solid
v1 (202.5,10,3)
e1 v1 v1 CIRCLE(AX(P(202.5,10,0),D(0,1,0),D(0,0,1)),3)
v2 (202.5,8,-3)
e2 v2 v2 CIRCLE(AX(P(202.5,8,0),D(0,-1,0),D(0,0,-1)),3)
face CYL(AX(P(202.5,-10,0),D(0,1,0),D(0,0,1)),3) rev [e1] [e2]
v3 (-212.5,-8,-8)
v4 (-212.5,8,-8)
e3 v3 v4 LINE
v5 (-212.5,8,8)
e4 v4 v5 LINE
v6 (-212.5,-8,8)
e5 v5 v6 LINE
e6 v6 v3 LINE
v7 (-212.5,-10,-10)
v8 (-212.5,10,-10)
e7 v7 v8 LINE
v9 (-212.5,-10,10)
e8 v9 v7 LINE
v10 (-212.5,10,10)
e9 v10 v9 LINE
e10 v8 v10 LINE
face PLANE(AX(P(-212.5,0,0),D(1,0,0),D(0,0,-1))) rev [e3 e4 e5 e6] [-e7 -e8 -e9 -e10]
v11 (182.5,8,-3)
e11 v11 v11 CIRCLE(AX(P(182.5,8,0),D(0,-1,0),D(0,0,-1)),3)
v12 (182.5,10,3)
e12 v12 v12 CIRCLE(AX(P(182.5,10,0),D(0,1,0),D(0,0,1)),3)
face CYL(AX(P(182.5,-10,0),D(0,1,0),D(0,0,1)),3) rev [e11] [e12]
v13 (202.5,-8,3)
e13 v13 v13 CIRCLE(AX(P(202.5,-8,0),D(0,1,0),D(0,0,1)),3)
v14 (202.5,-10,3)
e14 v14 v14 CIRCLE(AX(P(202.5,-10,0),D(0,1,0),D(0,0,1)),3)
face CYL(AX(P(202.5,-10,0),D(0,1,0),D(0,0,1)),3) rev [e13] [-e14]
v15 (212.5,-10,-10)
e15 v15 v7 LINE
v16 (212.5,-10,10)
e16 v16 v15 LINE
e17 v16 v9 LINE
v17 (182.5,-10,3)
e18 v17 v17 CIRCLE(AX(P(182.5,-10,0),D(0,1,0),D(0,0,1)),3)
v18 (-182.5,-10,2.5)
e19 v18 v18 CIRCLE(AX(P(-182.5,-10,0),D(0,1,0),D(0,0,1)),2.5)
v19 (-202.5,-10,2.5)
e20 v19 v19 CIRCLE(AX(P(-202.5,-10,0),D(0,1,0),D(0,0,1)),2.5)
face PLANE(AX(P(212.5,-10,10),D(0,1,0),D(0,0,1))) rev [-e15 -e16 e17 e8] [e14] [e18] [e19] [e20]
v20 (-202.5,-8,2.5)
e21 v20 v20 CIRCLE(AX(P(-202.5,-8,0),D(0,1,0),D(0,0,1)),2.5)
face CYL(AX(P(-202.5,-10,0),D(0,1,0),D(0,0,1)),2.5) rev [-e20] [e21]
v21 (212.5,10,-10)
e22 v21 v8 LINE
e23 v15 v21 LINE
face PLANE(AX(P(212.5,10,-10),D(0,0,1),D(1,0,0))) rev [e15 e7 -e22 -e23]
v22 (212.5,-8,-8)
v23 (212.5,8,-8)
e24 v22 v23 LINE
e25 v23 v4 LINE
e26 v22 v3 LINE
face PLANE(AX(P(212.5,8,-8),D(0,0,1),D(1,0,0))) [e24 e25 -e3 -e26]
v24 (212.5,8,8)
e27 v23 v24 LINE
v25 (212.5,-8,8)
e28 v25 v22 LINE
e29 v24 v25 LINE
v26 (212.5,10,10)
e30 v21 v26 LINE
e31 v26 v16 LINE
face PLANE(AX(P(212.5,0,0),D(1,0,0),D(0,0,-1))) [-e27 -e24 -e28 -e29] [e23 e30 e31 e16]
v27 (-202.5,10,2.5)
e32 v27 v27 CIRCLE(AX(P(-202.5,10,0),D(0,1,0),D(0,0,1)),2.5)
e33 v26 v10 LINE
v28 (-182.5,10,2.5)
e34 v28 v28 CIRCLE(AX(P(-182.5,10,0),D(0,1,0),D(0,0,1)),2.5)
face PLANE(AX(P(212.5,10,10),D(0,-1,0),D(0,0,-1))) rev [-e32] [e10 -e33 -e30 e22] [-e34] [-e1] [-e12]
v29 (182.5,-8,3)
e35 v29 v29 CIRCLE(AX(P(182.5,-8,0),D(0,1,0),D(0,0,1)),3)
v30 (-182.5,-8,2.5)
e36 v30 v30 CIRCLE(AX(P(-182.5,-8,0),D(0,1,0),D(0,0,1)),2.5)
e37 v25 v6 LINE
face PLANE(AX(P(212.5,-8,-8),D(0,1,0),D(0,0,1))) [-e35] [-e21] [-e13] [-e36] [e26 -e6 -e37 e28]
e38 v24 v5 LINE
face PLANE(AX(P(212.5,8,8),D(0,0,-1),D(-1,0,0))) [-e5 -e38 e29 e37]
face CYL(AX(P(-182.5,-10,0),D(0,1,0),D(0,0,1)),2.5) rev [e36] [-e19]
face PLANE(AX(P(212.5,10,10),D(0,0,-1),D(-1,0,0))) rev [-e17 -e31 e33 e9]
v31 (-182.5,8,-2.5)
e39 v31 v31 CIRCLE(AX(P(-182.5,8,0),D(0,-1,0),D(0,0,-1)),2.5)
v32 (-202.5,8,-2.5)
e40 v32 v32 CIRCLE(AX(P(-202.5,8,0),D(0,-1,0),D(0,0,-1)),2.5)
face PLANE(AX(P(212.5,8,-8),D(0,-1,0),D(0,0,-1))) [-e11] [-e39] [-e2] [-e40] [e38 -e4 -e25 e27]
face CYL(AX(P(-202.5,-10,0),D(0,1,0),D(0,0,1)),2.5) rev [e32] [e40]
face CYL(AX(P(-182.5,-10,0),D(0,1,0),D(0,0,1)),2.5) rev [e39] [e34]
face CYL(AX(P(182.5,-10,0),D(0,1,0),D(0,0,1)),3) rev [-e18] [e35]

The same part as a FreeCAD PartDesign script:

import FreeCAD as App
import Part
import Sketcher
Q = App.Units.Quantity


def add_polygon(sketch, points):
    """Adds a closed chain of lines whose ends are joined by coincident constraints."""
    first, n = sketch.GeometryCount, len(points)
    for a, b in zip(points, points[1:] + points[:1]):
        sketch.addGeometry(Part.LineSegment(App.Vector(*a, 0), App.Vector(*b, 0)), False)
    for i in range(n):
        sketch.addConstraint(Sketcher.Constraint("Coincident", first + i, 2, first + (i + 1) % n, 1))

doc = App.newDocument("Part")
body = doc.addObject("PartDesign::Body", "Body")

sketch1 = body.newObject("Sketcher::SketchObject", "Sketch")
sketch1.AttachmentSupport = (doc.getObject("YZ_Plane"), [""])
sketch1.MapMode = "FlatFace"
add_polygon(sketch1, [(10, 10), (-10, 10), (-10, -10), (10, -10)])
add_polygon(sketch1, [(-8, -8), (-8, 8), (8, 8), (8, -8)])
sketch1.addConstraint(Sketcher.Constraint("Horizontal", 0))
sketch1.addConstraint(Sketcher.Constraint("Vertical", 1))
sketch1.addConstraint(Sketcher.Constraint("Horizontal", 2))
sketch1.addConstraint(Sketcher.Constraint("Vertical", 3))
sketch1.addConstraint(Sketcher.Constraint("Vertical", 4))
sketch1.addConstraint(Sketcher.Constraint("Horizontal", 5))
sketch1.addConstraint(Sketcher.Constraint("Vertical", 6))
sketch1.addConstraint(Sketcher.Constraint("Horizontal", 7))
sketch1.addConstraint(Sketcher.Constraint("Symmetric", 0, 2, 2, 2, -1, 1))
sketch1.addConstraint(Sketcher.Constraint("Symmetric", 4, 2, 6, 2, -1, 1))
sketch1.addConstraint(Sketcher.Constraint("Equal", 2, 1))
sketch1.addConstraint(Sketcher.Constraint("Equal", 7, 4))
sketch1.addConstraint(Sketcher.Constraint("DistanceX", 0, 2, 0, 1, Q("20 mm")))
sketch1.addConstraint(Sketcher.Constraint("DistanceX", 5, 1, 5, 2, Q("16 mm")))
pad1 = body.newObject("PartDesign::Pad", "Pad")
pad1.Profile = sketch1
pad1.Length = 425
pad1.Midplane = True

sketch2 = body.newObject("Sketcher::SketchObject", "Sketch001")
sketch2.AttachmentSupport = (doc.getObject("XZ_Plane"), [""])
sketch2.MapMode = "FlatFace"
sketch2.AttachmentOffset = App.Placement(App.Vector(0, 0, -10), App.Rotation())
sketch2.addGeometry(Part.Circle(App.Vector(182.5, 0, 0), App.Vector(0, 0, 1), 3), False)
sketch2.addGeometry(Part.Circle(App.Vector(202.5, 0, 0), App.Vector(0, 0, 1), 3), False)
sketch2.addConstraint(Sketcher.Constraint("Equal", 0, 1))
sketch2.addConstraint(Sketcher.Constraint("PointOnObject", 0, 3, -1))
sketch2.addConstraint(Sketcher.Constraint("PointOnObject", 1, 3, -1))
sketch2.addConstraint(Sketcher.Constraint("Diameter", 0, Q("6 mm")))
sketch2.addConstraint(Sketcher.Constraint("DistanceX", 0, 3, 1, 3, Q("20 mm")))
sketch2.addConstraint(Sketcher.Constraint("DistanceX", -1, 1, 0, 3, Q("182.5 mm")))
pocket1 = body.newObject("PartDesign::Pocket", "Pocket")
pocket1.Profile = sketch2
pocket1.Type = "ThroughAll"
pocket1.Reversed = True

sketch3 = body.newObject("Sketcher::SketchObject", "Sketch002")
sketch3.AttachmentSupport = (doc.getObject("XZ_Plane"), [""])
sketch3.MapMode = "FlatFace"
sketch3.AttachmentOffset = App.Placement(App.Vector(0, 0, -10), App.Rotation())
sketch3.addGeometry(Part.Circle(App.Vector(-202.5, 0, 0), App.Vector(0, 0, 1), 2.5), False)
sketch3.addGeometry(Part.Circle(App.Vector(-182.5, 0, 0), App.Vector(0, 0, 1), 2.5), False)
sketch3.addConstraint(Sketcher.Constraint("Equal", 0, 1))
sketch3.addConstraint(Sketcher.Constraint("PointOnObject", 0, 3, -1))
sketch3.addConstraint(Sketcher.Constraint("PointOnObject", 1, 3, -1))
sketch3.addConstraint(Sketcher.Constraint("Diameter", 0, Q("5 mm")))
sketch3.addConstraint(Sketcher.Constraint("DistanceX", 0, 3, 1, 3, Q("20 mm")))
sketch3.addConstraint(Sketcher.Constraint("DistanceX", 0, 3, -1, 1, Q("202.5 mm")))
pocket2 = body.newObject("PartDesign::Pocket", "Pocket001")
pocket2.Profile = sketch3
pocket2.Type = "ThroughAll"
pocket2.Reversed = True

doc.recompute()
